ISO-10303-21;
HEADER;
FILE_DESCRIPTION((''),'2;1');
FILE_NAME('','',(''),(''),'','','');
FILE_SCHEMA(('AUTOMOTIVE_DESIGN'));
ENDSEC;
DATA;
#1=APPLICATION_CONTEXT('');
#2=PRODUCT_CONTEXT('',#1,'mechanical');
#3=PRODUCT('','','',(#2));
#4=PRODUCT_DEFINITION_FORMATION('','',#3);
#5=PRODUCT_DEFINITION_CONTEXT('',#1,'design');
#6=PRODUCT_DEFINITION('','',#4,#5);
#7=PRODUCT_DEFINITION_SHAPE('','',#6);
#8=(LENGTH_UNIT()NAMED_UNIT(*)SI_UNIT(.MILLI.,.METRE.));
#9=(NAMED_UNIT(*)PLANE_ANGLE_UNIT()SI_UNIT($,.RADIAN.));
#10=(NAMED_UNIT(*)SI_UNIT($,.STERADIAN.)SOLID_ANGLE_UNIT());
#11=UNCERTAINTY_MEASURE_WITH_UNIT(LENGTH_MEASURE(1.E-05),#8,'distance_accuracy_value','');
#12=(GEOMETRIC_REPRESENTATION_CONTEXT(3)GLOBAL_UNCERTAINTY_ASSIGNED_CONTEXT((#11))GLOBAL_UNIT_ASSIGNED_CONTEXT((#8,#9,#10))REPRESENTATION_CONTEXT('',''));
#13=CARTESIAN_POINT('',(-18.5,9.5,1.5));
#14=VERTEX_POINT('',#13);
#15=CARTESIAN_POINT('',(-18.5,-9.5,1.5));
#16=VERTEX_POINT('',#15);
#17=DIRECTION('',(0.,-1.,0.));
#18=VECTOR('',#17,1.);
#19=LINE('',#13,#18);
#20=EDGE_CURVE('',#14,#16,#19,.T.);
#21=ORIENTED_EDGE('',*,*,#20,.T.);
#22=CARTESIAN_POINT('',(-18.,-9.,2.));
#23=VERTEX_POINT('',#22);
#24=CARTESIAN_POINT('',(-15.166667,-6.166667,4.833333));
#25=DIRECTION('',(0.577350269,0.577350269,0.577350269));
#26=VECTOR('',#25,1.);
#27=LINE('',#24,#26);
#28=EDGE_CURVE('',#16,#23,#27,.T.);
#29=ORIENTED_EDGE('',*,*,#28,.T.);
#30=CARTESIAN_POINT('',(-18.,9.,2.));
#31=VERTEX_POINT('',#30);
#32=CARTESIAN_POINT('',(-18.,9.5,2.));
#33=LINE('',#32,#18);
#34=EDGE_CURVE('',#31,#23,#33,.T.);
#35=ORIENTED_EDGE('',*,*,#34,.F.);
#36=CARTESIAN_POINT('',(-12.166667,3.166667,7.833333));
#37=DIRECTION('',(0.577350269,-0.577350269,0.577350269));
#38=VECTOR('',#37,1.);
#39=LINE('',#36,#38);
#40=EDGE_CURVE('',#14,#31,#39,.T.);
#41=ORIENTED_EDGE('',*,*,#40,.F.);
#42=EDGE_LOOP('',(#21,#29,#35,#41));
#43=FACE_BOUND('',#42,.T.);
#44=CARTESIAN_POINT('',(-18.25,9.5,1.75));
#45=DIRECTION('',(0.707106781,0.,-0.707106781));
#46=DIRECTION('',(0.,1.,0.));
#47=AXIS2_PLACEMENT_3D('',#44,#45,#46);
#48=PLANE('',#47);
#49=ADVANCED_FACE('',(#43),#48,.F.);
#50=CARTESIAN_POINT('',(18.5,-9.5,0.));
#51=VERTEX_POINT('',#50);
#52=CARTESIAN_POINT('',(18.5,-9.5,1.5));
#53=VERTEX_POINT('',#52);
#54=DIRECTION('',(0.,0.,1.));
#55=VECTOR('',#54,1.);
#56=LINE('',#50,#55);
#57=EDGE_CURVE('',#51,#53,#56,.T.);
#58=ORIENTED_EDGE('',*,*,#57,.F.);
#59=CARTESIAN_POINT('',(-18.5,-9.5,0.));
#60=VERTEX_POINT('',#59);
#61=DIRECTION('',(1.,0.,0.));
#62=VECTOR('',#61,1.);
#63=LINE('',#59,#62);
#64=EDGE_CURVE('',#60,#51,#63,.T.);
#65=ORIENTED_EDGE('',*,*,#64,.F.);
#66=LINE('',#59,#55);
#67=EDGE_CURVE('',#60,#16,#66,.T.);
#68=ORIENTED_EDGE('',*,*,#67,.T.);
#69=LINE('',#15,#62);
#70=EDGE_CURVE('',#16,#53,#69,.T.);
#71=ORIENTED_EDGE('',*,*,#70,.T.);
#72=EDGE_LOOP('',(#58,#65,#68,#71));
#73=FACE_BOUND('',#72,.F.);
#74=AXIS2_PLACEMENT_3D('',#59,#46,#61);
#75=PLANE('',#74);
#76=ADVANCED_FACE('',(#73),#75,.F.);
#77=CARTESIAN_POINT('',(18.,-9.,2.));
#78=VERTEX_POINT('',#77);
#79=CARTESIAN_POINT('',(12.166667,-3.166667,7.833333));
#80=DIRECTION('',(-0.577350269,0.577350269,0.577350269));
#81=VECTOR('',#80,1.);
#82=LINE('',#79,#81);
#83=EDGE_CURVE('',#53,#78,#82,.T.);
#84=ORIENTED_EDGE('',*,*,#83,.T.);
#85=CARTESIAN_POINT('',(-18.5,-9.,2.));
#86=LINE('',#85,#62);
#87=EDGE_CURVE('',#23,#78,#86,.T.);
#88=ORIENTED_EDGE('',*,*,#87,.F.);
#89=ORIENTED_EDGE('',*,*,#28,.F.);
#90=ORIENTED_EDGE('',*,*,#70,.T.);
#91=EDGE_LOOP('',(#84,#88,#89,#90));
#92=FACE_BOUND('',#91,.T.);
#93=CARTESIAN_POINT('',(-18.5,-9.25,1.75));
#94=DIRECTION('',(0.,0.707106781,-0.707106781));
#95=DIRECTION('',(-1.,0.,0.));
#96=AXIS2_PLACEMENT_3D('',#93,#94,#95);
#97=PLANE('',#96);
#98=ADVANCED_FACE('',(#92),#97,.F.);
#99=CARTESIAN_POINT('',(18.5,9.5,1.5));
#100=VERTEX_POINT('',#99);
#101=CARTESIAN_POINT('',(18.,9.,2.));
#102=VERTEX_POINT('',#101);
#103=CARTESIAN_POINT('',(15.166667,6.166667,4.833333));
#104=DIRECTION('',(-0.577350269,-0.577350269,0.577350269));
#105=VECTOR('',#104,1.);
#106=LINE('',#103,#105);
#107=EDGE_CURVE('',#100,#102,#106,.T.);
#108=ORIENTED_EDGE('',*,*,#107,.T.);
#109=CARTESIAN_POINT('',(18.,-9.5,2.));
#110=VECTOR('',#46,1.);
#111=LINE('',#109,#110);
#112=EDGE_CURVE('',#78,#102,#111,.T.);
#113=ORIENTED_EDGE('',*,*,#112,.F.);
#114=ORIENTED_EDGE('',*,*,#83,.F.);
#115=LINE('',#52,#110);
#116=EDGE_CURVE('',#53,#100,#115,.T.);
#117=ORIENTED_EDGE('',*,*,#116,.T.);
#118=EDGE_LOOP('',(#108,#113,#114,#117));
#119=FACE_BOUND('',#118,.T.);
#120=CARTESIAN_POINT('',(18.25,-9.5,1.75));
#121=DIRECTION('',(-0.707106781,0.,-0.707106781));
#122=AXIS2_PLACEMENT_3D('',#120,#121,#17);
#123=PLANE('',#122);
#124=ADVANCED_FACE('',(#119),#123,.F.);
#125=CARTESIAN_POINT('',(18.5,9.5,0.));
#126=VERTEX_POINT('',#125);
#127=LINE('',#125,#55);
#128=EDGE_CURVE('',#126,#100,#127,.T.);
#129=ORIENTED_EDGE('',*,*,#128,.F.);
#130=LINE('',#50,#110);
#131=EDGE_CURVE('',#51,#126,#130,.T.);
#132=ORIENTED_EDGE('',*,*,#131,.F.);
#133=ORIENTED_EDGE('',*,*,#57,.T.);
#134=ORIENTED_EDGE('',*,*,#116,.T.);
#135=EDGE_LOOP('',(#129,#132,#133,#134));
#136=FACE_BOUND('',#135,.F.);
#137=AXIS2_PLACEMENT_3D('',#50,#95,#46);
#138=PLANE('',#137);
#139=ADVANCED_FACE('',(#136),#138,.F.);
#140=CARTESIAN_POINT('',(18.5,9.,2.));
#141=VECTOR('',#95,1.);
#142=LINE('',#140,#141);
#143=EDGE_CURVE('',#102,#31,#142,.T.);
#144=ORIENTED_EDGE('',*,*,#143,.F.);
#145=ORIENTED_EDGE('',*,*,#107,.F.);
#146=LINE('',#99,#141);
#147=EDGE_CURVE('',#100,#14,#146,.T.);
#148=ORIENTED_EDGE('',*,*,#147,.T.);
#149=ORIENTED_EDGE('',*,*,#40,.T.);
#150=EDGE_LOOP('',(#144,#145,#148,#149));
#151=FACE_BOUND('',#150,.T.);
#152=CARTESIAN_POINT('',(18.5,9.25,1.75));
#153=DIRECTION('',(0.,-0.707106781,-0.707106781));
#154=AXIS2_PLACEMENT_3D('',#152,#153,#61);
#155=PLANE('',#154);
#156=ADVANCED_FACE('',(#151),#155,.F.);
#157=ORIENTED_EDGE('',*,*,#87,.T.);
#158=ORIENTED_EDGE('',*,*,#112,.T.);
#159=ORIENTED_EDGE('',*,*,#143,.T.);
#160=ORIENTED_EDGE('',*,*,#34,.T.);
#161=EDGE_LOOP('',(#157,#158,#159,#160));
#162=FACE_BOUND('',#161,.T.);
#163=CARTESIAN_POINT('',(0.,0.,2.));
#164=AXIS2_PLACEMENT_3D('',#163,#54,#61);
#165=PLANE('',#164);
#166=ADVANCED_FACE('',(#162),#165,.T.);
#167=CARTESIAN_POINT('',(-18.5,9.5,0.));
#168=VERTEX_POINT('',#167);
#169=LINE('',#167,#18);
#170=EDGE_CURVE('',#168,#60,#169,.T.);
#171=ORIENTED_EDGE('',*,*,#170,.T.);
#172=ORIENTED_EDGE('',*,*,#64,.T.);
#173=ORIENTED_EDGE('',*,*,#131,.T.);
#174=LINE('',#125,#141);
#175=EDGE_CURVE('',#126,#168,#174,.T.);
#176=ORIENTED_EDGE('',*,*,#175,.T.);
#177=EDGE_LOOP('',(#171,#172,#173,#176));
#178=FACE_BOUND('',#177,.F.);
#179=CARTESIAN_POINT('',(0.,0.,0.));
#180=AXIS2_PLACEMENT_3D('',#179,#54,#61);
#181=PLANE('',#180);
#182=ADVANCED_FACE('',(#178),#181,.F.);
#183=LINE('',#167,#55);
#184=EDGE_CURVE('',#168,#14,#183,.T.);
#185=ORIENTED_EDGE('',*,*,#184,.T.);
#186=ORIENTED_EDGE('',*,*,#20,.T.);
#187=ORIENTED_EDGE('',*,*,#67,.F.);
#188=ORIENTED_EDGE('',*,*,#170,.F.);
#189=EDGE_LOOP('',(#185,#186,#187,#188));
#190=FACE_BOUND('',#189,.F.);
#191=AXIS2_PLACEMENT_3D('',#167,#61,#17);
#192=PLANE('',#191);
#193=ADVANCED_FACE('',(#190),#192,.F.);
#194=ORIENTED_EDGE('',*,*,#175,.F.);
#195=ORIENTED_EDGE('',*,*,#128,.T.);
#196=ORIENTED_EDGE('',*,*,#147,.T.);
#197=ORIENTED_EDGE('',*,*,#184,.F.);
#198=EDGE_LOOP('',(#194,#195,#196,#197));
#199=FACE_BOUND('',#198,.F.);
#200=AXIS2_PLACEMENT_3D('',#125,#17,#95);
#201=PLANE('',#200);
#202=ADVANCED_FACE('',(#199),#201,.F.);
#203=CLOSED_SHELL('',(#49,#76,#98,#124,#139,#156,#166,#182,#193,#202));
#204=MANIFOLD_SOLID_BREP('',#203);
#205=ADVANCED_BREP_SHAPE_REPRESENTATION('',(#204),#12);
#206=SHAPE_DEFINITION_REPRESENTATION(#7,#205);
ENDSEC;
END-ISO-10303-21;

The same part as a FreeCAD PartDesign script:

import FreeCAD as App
import Part
import Sketcher
from FreeCAD import Vector


def edges_at(feature, points):
    """Names of the edges that pass closest to the given points."""
    edges = feature.Shape.Edges
    near = lambda p: min(range(len(edges)), key=lambda i: edges[i].distToShape(Part.Vertex(*p))[0])
    return sorted({f"Edge{near(p) + 1}" for p in points})


def add_polygon(sketch, points):
    """Adds a closed chain of lines whose ends are joined by coincident constraints."""
    first, n = sketch.GeometryCount, len(points)
    for a, b in zip(points, points[1:] + points[:1]):
        sketch.addGeometry(Part.LineSegment(App.Vector(*a, 0), App.Vector(*b, 0)), False)
    for i in range(n):
        sketch.addConstraint(Sketcher.Constraint("Coincident", first + i, 2, first + (i + 1) % n, 1))

doc = App.newDocument("Part")
body = doc.addObject("PartDesign::Body", "Body")

# Sketch on XY plane
sketch1 = body.newObject("Sketcher::SketchObject", "Sketch")
sketch1.AttachmentSupport = (doc.getObject("XY_Plane"), [""])
sketch1.MapMode = "FlatFace"
add_polygon(sketch1, [(-18, 10), (-18, -10), (18, -10), (18, 10)])  # lines 0-3
sketch1.addConstraint([
    Sketcher.Constraint("Vertical", 0),
    Sketcher.Constraint("Horizontal", 1),
    Sketcher.Constraint("Vertical", 2),
    Sketcher.Constraint("Horizontal", 3),
    Sketcher.Constraint("Symmetric", 0, 2, 2, 2, -1, 1),
    Sketcher.Constraint("DistanceX", 0, 2, -1, 1, 18.5),
    Sketcher.Constraint("DistanceY", 0, 2, 0, 1, 19.0),
])
pad1 = body.newObject("PartDesign::Pad", "Pad")
pad1.Profile = sketch1
pad1.Length = 2
doc.recompute()

chamfer = body.newObject("PartDesign::Chamfer", "Chamfer")
chamfer.Base = (pad1, edges_at(pad1, [
    (-18.5, 0, 2),
    (0, -9.5, 2),
    (18.5, 0, 2),
    (0, 9.5, 2),
]))
chamfer.Size = 0.5

doc.recompute()
